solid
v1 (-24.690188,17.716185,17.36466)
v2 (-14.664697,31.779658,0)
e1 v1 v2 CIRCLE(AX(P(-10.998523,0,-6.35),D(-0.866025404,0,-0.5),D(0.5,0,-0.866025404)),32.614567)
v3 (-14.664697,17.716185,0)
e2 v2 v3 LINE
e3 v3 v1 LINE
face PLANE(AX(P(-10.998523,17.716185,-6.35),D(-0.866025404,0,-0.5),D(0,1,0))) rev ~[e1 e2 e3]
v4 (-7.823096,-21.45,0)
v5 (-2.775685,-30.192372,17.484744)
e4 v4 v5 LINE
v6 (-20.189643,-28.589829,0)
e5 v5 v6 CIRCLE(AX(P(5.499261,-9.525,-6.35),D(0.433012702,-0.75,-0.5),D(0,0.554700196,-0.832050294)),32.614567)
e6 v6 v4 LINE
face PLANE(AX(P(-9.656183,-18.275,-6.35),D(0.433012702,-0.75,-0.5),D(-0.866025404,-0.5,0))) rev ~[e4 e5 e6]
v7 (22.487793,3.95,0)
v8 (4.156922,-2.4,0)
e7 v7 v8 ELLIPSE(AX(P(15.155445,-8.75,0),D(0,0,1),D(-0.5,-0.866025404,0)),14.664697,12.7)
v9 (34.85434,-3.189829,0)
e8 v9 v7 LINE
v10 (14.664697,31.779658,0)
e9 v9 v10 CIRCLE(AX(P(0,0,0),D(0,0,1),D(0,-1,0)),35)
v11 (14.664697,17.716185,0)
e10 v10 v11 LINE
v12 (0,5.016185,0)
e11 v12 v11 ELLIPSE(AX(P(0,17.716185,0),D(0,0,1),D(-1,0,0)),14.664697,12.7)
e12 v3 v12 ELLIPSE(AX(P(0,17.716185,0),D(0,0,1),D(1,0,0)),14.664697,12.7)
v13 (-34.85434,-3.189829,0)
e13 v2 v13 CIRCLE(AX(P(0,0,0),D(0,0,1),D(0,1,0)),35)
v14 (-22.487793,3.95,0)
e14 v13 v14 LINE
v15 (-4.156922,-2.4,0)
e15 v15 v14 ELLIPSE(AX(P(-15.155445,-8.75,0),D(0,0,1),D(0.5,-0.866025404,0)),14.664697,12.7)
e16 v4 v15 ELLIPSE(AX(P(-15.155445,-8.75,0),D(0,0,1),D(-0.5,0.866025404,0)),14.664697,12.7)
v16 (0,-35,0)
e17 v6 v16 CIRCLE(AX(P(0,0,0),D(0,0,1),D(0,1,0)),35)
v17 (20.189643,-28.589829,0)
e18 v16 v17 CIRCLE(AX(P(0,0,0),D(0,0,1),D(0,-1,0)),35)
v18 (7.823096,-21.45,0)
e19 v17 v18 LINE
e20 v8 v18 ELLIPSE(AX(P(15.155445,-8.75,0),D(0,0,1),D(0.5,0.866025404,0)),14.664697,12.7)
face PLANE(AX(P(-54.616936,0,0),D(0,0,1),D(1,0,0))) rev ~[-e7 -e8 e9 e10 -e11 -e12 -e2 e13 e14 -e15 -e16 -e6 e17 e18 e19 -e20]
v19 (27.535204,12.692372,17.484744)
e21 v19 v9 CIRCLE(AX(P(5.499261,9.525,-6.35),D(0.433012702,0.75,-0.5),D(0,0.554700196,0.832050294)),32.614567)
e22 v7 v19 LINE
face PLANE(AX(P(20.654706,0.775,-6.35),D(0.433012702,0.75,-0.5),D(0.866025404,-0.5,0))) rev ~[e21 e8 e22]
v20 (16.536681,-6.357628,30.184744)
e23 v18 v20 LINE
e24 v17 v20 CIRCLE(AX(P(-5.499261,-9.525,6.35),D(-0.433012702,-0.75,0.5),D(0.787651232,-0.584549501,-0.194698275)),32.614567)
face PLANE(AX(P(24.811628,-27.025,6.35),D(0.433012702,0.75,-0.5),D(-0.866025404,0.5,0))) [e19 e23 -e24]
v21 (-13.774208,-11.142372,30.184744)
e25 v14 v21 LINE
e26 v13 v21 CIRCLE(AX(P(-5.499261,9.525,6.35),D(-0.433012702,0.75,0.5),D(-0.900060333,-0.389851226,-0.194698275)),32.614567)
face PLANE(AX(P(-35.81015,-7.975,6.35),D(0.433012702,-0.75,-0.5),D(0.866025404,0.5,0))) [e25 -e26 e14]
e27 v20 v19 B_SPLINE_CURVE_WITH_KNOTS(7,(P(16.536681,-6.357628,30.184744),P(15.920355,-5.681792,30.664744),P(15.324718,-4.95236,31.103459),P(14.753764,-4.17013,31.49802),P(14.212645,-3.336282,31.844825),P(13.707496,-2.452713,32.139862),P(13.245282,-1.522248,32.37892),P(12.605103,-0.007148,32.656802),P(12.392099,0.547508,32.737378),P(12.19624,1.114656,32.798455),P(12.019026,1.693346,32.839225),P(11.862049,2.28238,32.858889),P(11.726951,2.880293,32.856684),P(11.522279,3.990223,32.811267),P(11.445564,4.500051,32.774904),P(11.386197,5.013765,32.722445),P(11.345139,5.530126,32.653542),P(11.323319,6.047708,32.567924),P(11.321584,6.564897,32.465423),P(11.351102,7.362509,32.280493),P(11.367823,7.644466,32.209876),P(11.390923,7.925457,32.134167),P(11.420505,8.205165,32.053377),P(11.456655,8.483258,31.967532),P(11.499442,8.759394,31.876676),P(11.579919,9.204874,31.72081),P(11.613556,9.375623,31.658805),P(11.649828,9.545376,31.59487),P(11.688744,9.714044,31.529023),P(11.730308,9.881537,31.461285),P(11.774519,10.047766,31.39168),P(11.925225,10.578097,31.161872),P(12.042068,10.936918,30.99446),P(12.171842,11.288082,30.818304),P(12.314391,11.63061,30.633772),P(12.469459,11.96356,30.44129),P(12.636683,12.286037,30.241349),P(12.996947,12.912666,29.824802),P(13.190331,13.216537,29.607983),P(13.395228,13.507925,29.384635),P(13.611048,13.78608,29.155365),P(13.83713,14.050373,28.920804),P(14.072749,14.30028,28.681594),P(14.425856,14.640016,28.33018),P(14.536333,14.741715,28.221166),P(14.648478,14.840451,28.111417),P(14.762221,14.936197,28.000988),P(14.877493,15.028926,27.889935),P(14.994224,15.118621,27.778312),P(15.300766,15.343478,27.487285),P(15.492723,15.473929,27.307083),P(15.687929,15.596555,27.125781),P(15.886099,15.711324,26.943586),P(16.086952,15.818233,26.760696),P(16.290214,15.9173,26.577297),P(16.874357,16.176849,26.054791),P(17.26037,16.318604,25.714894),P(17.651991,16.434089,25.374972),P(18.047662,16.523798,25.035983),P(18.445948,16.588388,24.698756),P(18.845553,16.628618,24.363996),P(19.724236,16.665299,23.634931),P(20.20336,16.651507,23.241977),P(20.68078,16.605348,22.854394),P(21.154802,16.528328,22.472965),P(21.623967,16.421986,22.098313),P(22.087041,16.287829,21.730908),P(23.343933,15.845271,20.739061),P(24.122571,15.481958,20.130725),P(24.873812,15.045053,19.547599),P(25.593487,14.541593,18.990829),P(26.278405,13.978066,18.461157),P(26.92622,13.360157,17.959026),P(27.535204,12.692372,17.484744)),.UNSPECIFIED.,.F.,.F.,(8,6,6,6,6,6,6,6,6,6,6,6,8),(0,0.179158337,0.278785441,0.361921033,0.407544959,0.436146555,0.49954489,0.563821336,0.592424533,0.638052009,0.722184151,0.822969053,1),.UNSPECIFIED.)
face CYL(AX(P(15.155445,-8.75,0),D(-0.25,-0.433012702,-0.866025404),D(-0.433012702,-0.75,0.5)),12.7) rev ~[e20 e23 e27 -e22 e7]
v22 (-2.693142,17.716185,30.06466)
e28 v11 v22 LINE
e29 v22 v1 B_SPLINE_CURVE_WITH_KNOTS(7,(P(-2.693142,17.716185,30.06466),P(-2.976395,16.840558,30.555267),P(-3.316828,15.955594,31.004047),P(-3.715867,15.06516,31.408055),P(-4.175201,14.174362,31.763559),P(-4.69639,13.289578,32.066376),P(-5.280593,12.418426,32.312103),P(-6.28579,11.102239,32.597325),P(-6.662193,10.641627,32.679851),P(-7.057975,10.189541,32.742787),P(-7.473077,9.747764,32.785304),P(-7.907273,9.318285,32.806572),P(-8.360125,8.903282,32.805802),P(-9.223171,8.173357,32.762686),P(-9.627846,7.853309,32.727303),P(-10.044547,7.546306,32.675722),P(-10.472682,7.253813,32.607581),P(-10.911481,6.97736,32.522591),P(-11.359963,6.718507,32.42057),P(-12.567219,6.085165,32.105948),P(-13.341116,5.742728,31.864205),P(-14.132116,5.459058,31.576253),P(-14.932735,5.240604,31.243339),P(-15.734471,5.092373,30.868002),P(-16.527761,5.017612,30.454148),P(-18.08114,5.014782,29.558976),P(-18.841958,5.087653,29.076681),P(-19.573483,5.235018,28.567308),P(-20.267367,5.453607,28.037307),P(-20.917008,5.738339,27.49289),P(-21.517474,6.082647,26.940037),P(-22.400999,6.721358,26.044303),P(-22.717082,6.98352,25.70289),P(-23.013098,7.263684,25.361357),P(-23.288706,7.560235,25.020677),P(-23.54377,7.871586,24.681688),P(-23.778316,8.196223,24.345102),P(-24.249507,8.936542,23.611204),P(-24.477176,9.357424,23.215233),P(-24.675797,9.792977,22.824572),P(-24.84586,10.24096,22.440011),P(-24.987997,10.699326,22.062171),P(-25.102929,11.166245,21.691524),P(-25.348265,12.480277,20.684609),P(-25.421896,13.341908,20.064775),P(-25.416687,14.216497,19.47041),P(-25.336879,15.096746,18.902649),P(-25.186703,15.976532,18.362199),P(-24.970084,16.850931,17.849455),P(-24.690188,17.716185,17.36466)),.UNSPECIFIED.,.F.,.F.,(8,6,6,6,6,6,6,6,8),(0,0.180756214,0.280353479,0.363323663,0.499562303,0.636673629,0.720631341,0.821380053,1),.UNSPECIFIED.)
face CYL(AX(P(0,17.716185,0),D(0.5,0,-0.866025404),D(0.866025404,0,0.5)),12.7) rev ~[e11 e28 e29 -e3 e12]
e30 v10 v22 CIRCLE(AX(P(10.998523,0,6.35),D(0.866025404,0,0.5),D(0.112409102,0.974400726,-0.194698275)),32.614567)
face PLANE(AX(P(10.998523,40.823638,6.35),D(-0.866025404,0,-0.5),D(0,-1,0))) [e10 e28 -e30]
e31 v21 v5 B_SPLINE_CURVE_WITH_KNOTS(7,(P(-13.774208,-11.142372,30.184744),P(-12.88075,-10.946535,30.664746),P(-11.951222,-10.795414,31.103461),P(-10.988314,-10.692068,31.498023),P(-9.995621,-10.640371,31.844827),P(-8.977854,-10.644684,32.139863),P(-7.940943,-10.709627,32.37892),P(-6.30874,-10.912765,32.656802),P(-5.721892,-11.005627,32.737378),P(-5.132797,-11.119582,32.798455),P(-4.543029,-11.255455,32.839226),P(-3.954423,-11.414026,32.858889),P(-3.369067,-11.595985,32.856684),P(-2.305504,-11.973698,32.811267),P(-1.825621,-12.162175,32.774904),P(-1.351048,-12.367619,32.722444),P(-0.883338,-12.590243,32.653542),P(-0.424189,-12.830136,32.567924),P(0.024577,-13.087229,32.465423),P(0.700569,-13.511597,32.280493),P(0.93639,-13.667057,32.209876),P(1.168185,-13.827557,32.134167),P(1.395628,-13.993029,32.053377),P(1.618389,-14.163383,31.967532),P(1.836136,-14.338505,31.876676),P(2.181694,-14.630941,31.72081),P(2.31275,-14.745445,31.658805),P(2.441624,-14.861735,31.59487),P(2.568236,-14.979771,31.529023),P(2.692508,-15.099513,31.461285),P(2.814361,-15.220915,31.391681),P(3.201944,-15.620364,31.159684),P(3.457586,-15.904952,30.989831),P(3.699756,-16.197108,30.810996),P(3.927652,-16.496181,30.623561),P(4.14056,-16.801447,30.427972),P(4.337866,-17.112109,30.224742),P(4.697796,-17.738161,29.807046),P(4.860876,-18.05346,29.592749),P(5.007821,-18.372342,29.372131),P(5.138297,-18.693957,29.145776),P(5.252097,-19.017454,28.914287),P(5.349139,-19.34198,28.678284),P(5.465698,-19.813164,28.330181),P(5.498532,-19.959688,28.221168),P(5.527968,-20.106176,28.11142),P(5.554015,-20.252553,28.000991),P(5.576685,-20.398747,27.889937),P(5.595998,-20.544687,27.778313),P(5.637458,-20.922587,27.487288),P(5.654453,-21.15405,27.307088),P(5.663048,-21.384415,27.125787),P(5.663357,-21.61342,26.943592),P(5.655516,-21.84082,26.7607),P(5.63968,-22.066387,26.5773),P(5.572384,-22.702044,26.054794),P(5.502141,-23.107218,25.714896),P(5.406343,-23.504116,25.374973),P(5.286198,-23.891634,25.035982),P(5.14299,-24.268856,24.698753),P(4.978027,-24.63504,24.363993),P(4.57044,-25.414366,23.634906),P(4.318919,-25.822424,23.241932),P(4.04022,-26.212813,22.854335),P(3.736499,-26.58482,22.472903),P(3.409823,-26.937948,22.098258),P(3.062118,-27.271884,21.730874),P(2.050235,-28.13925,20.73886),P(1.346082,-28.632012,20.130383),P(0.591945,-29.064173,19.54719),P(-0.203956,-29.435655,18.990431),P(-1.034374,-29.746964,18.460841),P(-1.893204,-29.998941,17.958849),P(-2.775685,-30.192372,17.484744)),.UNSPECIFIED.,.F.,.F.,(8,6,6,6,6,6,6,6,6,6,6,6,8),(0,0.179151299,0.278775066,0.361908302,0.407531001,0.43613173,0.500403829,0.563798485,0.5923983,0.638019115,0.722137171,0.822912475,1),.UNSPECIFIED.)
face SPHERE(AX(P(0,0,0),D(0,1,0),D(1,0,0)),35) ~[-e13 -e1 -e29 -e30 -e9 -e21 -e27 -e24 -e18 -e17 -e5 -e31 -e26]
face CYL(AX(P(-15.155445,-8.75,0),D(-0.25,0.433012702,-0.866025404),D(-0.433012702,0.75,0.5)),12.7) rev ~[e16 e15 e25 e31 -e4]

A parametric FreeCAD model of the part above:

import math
import FreeCAD as App
import Part
import Sketcher

V = App.Vector
Q = App.Units.Quantity

doc = App.newDocument("Part")
params = doc.addObject("Spreadsheet::Sheet", "Params")
for row, (alias, value) in enumerate([
    ("sketch1_radius", "35 mm"),
    ("revolution_angle", "360 deg"),
    ("sketch3_radius", "12.7 mm"),
    ("sketch4_radius", "12.7 mm"),
    ("sketch4_length", "17.5 mm"),
    ("sketch5_radius", "12.7 mm"),
    ("sketch5_length", "17.5 mm"),
], start=1):
    params.set(f"A{row}", alias)
    params.set(f"B{row}", "=" + value)
    params.setAlias(f"B{row}", alias)

body = doc.addObject("PartDesign::Body", "Body")

sketch1 = body.newObject("Sketcher::SketchObject", "Sketch")
sketch1.AttachmentSupport = (doc.getObject("XY_Plane"), [""])
sketch1.MapMode = "FlatFace"
sketch1.addGeometry([
    Part.LineSegment(V(0, 35, 0), V(0, -35, 0)),
    Part.ArcOfCircle(Part.Circle(V(0, 0, 0), V(0, 0, 1), 35), math.radians(-90), math.radians(90)),
], False)
sketch1.addConstraint([
    Sketcher.Constraint("Coincident", 0, 1, 1, 2),
    Sketcher.Constraint("Coincident", 1, 1, 0, 2),
    Sketcher.Constraint("Vertical", 0),
    Sketcher.Constraint("Coincident", 1, 3, -1, 1),
    Sketcher.Constraint("PointOnObject", 0, 1, -2),
    Sketcher.Constraint("Radius", 1, Q("35 mm")),
])
sketch1.setExpression("Constraints[5]", "Params.sketch1_radius")
revolution = body.newObject("PartDesign::Revolution", "Revolution")
revolution.Profile = sketch1
revolution.ReferenceAxis = (sketch1, ["V_Axis"])
revolution.setExpression("Angle", "Params.revolution_angle")

sketch2 = body.newObject("Sketcher::SketchObject", "Sketch001")
sketch2.AttachmentSupport = (doc.getObject("XZ_Plane"), [""])
sketch2.MapMode = "FlatFace"
sketch2.addGeometry([
    Part.LineSegment(V(-55, 0, 0), V(-55, -44, 0)),
    Part.LineSegment(V(-55, -44, 0), V(56, -44, 0)),
    Part.LineSegment(V(56, -44, 0), V(56, 0, 0)),
    Part.LineSegment(V(56, 0, 0), V(-55, 0, 0)),
], False)
sketch2.addConstraint([
    Sketcher.Constraint("Coincident", 0, 2, 1, 1),
    Sketcher.Constraint("Coincident", 1, 2, 2, 1),
    Sketcher.Constraint("Coincident", 2, 2, 3, 1),
    Sketcher.Constraint("Coincident", 3, 2, 0, 1),
    Sketcher.Constraint("Vertical", 0),
    Sketcher.Constraint("Horizontal", 1),
    Sketcher.Constraint("Vertical", 2),
    Sketcher.Constraint("Horizontal", 3),
    Sketcher.Constraint("PointOnObject", 2, 2, -1),
    Sketcher.Constraint("DistanceX", 1, 1, 1, 2, Q("110.992558 mm")),
    Sketcher.Constraint("DistanceY", 0, 2, 0, 1, Q("44.455647 mm")),
    Sketcher.Constraint("DistanceX", 0, 2, -1, 1, Q("54.616936 mm")),
])
pocket1 = body.newObject("PartDesign::Pocket", "Pocket")
pocket1.Profile = sketch2
pocket1.Type = "ThroughAll"
pocket1.Midplane = True

sketch3 = body.newObject("Sketcher::SketchObject", "Sketch002")
sketch3.Placement = App.Placement(V(0, 0, 0), App.Rotation(V(0.866025404, 0, 0.5), V(0, -1, 0), V(0.5, 0, -0.866025404), "ZXY"))
sketch3.addGeometry([
    Part.LineSegment(V(13, -41, 0), V(13, -18, 0)),
    Part.ArcOfCircle(Part.Circle(V(0, -18, 0), V(0, 0, 1), 13), math.radians(0), math.radians(180)),
    Part.LineSegment(V(-13, -18, 0), V(-13, -41, 0)),
    Part.LineSegment(V(-13, -41, 0), V(13, -41, 0)),
], False)
sketch3.addConstraint([
    Sketcher.Constraint("Tangent", 0, 2, 1, 1),
    Sketcher.Constraint("Tangent", 1, 2, 2, 1),
    Sketcher.Constraint("Coincident", 2, 2, 3, 1),
    Sketcher.Constraint("Coincident", 3, 2, 0, 1),
    Sketcher.Constraint("Vertical", 0),
    Sketcher.Constraint("Vertical", 2),
    Sketcher.Constraint("Horizontal", 3),
    Sketcher.Constraint("PointOnObject", 1, 3, -2),
    Sketcher.Constraint("Radius", 1, Q("12.7 mm")),
    Sketcher.Constraint("DistanceY", 0, 1, 0, 2, Q("23.107453 mm")),
    Sketcher.Constraint("DistanceY", 2, 2, -1, 1, Q("40.823638 mm")),
])
sketch3.setExpression("Constraints[8]", "Params.sketch3_radius")
pocket2 = body.newObject("PartDesign::Pocket", "Pocket001")
pocket2.Profile = sketch3
pocket2.Type = "ThroughAll"
pocket2.Midplane = True

sketch4 = body.newObject("Sketcher::SketchObject", "Sketch003")
sketch4.Placement = App.Placement(V(0, 0, 0), App.Rotation(V(0.968245837, 0.111803399, -0.223606798), V(0, -0.894427192, -0.447213596), V(-0.25, 0.433012702, -0.866025404), "ZXY"))
sketch4.addGeometry([
    Part.LineSegment(V(-37, 4, 0), V(-21, -4, 0)),
    Part.ArcOfCircle(Part.Circle(V(-16, 8, 0), V(0, 0, 1), 13), math.radians(-117), math.radians(63)),
    Part.LineSegment(V(-10, 19, 0), V(-26, 27, 0)),
    Part.LineSegment(V(-26, 27, 0), V(-37, 4, 0)),
], False)
sketch4.addConstraint([
    Sketcher.Constraint("Tangent", 0, 2, 1, 1),
    Sketcher.Constraint("Tangent", 1, 2, 2, 1),
    Sketcher.Constraint("Coincident", 2, 2, 3, 1),
    Sketcher.Constraint("Coincident", 3, 2, 0, 1),
    Sketcher.Constraint("Parallel", 0, 2),
    Sketcher.Constraint("Perpendicular", 2, 3),
    Sketcher.Constraint("Radius", 1, Q("12.7 mm")),
    Sketcher.Constraint("Distance", 0, Q("17.5 mm")),
    Sketcher.Constraint("DistanceY", -1, 1, 2, 2, Q("27.011701 mm")),
    Sketcher.Constraint("DistanceX", 3, 2, 1, 2, Q("27.011701 mm")),
    Sketcher.Constraint("DistanceX", 0, 2, -1, 1, Q("21.332089 mm")),
])
sketch4.setExpression("Constraints[6]", "Params.sketch4_radius")
sketch4.setExpression("Constraints[7]", "Params.sketch4_length")
pocket3 = body.newObject("PartDesign::Pocket", "Pocket002")
pocket3.Profile = sketch4
pocket3.Type = "ThroughAll"
pocket3.Midplane = True

sketch5 = body.newObject("Sketcher::SketchObject", "Sketch004")
sketch5.Placement = App.Placement(V(0, 0, 0), App.Rotation(V(0.968245837, -0.111803399, -0.223606798), V(0, -0.894427192, 0.447213596), V(-0.25, -0.433012702, -0.866025404), "ZXY"))
sketch5.addGeometry([
    Part.LineSegment(V(26, 27, 0), V(10, 19, 0)),
    Part.ArcOfCircle(Part.Circle(V(16, 8, 0), V(0, 0, 1), 13), math.radians(117), math.radians(297)),
    Part.LineSegment(V(21, -4, 0), V(37, 4, 0)),
    Part.LineSegment(V(37, 4, 0), V(26, 27, 0)),
], False)
sketch5.addConstraint([
    Sketcher.Constraint("Tangent", 0, 2, 1, 1),
    Sketcher.Constraint("Tangent", 1, 2, 2, 1),
    Sketcher.Constraint("Coincident", 2, 2, 3, 1),
    Sketcher.Constraint("Coincident", 3, 2, 0, 1),
    Sketcher.Constraint("Parallel", 0, 2),
    Sketcher.Constraint("Perpendicular", 2, 3),
    Sketcher.Constraint("Radius", 1, Q("12.7 mm")),
    Sketcher.Constraint("Distance", 0, Q("17.5 mm")),
    Sketcher.Constraint("DistanceY", -1, 1, 3, 2, Q("27.011701 mm")),
    Sketcher.Constraint("DistanceX", 0, 2, 2, 2, Q("27.011701 mm")),
    Sketcher.Constraint("DistanceX", -1, 1, 1, 2, Q("21.332089 mm")),
])
sketch5.setExpression("Constraints[6]", "Params.sketch5_radius")
sketch5.setExpression("Constraints[7]", "Params.sketch5_length")
pocket4 = body.newObject("PartDesign::Pocket", "Pocket003")
pocket4.Profile = sketch5
pocket4.Type = "ThroughAll"
pocket4.Midplane = True

doc.recompute()
